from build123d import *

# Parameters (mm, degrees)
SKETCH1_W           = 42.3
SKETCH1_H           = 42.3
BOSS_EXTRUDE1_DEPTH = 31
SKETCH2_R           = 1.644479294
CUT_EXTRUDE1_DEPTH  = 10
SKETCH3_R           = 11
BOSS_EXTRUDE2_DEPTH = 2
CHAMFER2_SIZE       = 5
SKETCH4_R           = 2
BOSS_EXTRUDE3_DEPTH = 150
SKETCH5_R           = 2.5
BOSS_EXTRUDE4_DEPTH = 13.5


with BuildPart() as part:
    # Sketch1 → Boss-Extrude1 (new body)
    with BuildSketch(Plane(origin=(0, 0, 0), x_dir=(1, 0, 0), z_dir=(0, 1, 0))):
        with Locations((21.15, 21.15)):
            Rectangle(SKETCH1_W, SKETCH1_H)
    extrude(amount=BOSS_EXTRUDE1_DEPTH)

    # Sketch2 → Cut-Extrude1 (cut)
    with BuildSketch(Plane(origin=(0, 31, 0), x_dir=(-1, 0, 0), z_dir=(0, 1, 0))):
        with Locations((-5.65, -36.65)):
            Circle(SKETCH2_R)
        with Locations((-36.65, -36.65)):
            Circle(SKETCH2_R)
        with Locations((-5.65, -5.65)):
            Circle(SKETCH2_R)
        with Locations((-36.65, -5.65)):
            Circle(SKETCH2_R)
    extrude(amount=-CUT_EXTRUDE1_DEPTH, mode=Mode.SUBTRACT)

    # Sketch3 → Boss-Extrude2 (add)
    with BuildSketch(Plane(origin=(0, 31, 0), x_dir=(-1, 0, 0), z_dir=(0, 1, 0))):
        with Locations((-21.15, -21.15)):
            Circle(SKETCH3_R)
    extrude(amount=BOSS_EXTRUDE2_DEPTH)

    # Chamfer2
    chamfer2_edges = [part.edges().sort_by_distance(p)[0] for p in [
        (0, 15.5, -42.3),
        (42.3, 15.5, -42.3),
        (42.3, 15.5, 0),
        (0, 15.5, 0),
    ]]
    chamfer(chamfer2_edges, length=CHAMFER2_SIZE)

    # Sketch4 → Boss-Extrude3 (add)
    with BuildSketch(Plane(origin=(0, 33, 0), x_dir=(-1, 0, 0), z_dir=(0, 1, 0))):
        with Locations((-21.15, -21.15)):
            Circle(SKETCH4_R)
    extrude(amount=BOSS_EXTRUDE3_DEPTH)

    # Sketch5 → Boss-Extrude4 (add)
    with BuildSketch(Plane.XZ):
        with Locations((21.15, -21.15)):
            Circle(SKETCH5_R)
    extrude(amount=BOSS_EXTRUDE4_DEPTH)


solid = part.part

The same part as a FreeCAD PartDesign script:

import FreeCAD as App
import Part
import Sketcher


def edges_at(feature, points):
    """Names of the edges that pass closest to the given points."""
    edges = feature.Shape.Edges
    near = lambda p: min(range(len(edges)), key=lambda i: edges[i].distToShape(Part.Vertex(*p))[0])
    return sorted({f"Edge{near(p) + 1}" for p in points})

doc = App.newDocument("Part")
body = doc.addObject("PartDesign::Body", "Body")

# Sketch on XZ plane
sketch1 = body.newObject("Sketcher::SketchObject", "Sketch")
sketch1.AttachmentSupport = (doc.getObject("XZ_Plane"), [""])
sketch1.MapMode = "FlatFace"
sketch1.addGeometry([
    Part.LineSegment(App.Vector(0, -42, 0), App.Vector(0, 0, 0)),
    Part.LineSegment(App.Vector(0, 0, 0), App.Vector(42, 0, 0)),
    Part.LineSegment(App.Vector(42, 0, 0), App.Vector(42, -42, 0)),
    Part.LineSegment(App.Vector(42, -42, 0), App.Vector(0, -42, 0)),
], False)
sketch1.addConstraint([
    Sketcher.Constraint("Coincident", 0, 2, 1, 1),
    Sketcher.Constraint("Coincident", 1, 2, 2, 1),
    Sketcher.Constraint("Coincident", 2, 2, 3, 1),
    Sketcher.Constraint("Coincident", 3, 2, 0, 1),
    Sketcher.Constraint("Vertical", 0),
    Sketcher.Constraint("Horizontal", 1),
    Sketcher.Constraint("Vertical", 2),
    Sketcher.Constraint("Horizontal", 3),
    Sketcher.Constraint("Coincident", 0, 2, -1, 1),
    Sketcher.Constraint("Equal", 3, 0),
    Sketcher.Constraint("DistanceX", 1, 1, 1, 2, 42.3),
])
pad1 = body.newObject("PartDesign::Pad", "Pad")
pad1.Profile = sketch1
pad1.Length = 31
pad1.Reversed = True

# Sketch on XZ plane
sketch2 = body.newObject("Sketcher::SketchObject", "Sketch001")
sketch2.AttachmentSupport = (doc.getObject("XZ_Plane"), [""])
sketch2.MapMode = "FlatFace"
sketch2.AttachmentOffset = App.Placement(App.Vector(0, 0, -31), App.Rotation())
sketch2.addGeometry([
    Part.Circle(App.Vector(5.7, -36.6, 0), App.Vector(0, 0, 1), 1.6),
    Part.Circle(App.Vector(36.6, -36.6, 0), App.Vector(0, 0, 1), 1.6),
    Part.Circle(App.Vector(5.7, -5.7, 0), App.Vector(0, 0, 1), 1.6),
    Part.Circle(App.Vector(36.6, -5.7, 0), App.Vector(0, 0, 1), 1.6),
], False)
sketch2.addConstraint([
    Sketcher.Constraint("Equal", 0, 1),
    Sketcher.Constraint("Equal", 1, 2),
    Sketcher.Constraint("Equal", 2, 3),
    Sketcher.Constraint("Horizontal", 0, 3, 1, 3),
    Sketcher.Constraint("Horizontal", 2, 3, 3, 3),
    Sketcher.Constraint("Vertical", 0, 3, 2, 3),
    Sketcher.Constraint("Vertical", 1, 3, 3, 3),
    Sketcher.Constraint("DistanceX", 0, 3, 1, 3, 31.0),
    Sketcher.Constraint("DistanceY", 0, 3, 2, 3, 31.0),
    Sketcher.Constraint("Diameter", 0, 3.288959),
    Sketcher.Constraint("DistanceX", -1, 1, 0, 3, 5.65),
    Sketcher.Constraint("DistanceY", 0, 3, -1, 1, 36.65),
])
pocket1 = body.newObject("PartDesign::Pocket", "Pocket")
pocket1.Profile = sketch2
pocket1.Length = 10
pocket1.Reversed = True

# Sketch on XZ plane
sketch3 = body.newObject("Sketcher::SketchObject", "Sketch002")
sketch3.AttachmentSupport = (doc.getObject("XZ_Plane"), [""])
sketch3.MapMode = "FlatFace"
sketch3.AttachmentOffset = App.Placement(App.Vector(0, 0, -31), App.Rotation())
sketch3.addGeometry(Part.Circle(App.Vector(21, -21, 0), App.Vector(0, 0, 1), 11), False)
sketch3.addConstraint([
    Sketcher.Constraint("Diameter", 0, 22.0),
    Sketcher.Constraint("DistanceX", -1, 1, 0, 3, 21.15),
    Sketcher.Constraint("DistanceY", 0, 3, -1, 1, 21.15),
])
pad2 = body.newObject("PartDesign::Pad", "Pad001")
pad2.Profile = sketch3
pad2.Length = 2
pad2.Reversed = True
doc.recompute()

chamfer = body.newObject("PartDesign::Chamfer", "Chamfer")
chamfer.Base = (pad2, edges_at(pad2, [
    (0, 15.5, -42.3),
    (42.3, 15.5, -42.3),
    (42.3, 15.5, 0),
    (0, 15.5, 0),
]))
chamfer.Size = 5

# Sketch on XZ plane
sketch4 = body.newObject("Sketcher::SketchObject", "Sketch003")
sketch4.AttachmentSupport = (doc.getObject("XZ_Plane"), [""])
sketch4.MapMode = "FlatFace"
sketch4.AttachmentOffset = App.Placement(App.Vector(0, 0, -33), App.Rotation())
sketch4.addGeometry(Part.Circle(App.Vector(21.1, -21.1, 0), App.Vector(0, 0, 1), 2), False)
sketch4.addConstraint([
    Sketcher.Constraint("Diameter", 0, 4.0),
    Sketcher.Constraint("DistanceX", -1, 1, 0, 3, 21.15),
    Sketcher.Constraint("DistanceY", 0, 3, -1, 1, 21.15),
])
pad3 = body.newObject("PartDesign::Pad", "Pad002")
pad3.Profile = sketch4
pad3.Length = 150
pad3.Reversed = True

# Sketch on XZ plane
sketch5 = body.newObject("Sketcher::SketchObject", "Sketch004")
sketch5.AttachmentSupport = (doc.getObject("XZ_Plane"), [""])
sketch5.MapMode = "FlatFace"
sketch5.addGeometry(Part.Circle(App.Vector(21.1, -21.1, 0), App.Vector(0, 0, 1), 2.5), False)
sketch5.addConstraint([
    Sketcher.Constraint("Diameter", 0, 5.0),
    Sketcher.Constraint("DistanceX", -1, 1, 0, 3, 21.15),
    Sketcher.Constraint("DistanceY", 0, 3, -1, 1, 21.15),
])
pad4 = body.newObject("PartDesign::Pad", "Pad003")
pad4.Profile = sketch5
pad4.Length = 13.5

doc.recompute()
